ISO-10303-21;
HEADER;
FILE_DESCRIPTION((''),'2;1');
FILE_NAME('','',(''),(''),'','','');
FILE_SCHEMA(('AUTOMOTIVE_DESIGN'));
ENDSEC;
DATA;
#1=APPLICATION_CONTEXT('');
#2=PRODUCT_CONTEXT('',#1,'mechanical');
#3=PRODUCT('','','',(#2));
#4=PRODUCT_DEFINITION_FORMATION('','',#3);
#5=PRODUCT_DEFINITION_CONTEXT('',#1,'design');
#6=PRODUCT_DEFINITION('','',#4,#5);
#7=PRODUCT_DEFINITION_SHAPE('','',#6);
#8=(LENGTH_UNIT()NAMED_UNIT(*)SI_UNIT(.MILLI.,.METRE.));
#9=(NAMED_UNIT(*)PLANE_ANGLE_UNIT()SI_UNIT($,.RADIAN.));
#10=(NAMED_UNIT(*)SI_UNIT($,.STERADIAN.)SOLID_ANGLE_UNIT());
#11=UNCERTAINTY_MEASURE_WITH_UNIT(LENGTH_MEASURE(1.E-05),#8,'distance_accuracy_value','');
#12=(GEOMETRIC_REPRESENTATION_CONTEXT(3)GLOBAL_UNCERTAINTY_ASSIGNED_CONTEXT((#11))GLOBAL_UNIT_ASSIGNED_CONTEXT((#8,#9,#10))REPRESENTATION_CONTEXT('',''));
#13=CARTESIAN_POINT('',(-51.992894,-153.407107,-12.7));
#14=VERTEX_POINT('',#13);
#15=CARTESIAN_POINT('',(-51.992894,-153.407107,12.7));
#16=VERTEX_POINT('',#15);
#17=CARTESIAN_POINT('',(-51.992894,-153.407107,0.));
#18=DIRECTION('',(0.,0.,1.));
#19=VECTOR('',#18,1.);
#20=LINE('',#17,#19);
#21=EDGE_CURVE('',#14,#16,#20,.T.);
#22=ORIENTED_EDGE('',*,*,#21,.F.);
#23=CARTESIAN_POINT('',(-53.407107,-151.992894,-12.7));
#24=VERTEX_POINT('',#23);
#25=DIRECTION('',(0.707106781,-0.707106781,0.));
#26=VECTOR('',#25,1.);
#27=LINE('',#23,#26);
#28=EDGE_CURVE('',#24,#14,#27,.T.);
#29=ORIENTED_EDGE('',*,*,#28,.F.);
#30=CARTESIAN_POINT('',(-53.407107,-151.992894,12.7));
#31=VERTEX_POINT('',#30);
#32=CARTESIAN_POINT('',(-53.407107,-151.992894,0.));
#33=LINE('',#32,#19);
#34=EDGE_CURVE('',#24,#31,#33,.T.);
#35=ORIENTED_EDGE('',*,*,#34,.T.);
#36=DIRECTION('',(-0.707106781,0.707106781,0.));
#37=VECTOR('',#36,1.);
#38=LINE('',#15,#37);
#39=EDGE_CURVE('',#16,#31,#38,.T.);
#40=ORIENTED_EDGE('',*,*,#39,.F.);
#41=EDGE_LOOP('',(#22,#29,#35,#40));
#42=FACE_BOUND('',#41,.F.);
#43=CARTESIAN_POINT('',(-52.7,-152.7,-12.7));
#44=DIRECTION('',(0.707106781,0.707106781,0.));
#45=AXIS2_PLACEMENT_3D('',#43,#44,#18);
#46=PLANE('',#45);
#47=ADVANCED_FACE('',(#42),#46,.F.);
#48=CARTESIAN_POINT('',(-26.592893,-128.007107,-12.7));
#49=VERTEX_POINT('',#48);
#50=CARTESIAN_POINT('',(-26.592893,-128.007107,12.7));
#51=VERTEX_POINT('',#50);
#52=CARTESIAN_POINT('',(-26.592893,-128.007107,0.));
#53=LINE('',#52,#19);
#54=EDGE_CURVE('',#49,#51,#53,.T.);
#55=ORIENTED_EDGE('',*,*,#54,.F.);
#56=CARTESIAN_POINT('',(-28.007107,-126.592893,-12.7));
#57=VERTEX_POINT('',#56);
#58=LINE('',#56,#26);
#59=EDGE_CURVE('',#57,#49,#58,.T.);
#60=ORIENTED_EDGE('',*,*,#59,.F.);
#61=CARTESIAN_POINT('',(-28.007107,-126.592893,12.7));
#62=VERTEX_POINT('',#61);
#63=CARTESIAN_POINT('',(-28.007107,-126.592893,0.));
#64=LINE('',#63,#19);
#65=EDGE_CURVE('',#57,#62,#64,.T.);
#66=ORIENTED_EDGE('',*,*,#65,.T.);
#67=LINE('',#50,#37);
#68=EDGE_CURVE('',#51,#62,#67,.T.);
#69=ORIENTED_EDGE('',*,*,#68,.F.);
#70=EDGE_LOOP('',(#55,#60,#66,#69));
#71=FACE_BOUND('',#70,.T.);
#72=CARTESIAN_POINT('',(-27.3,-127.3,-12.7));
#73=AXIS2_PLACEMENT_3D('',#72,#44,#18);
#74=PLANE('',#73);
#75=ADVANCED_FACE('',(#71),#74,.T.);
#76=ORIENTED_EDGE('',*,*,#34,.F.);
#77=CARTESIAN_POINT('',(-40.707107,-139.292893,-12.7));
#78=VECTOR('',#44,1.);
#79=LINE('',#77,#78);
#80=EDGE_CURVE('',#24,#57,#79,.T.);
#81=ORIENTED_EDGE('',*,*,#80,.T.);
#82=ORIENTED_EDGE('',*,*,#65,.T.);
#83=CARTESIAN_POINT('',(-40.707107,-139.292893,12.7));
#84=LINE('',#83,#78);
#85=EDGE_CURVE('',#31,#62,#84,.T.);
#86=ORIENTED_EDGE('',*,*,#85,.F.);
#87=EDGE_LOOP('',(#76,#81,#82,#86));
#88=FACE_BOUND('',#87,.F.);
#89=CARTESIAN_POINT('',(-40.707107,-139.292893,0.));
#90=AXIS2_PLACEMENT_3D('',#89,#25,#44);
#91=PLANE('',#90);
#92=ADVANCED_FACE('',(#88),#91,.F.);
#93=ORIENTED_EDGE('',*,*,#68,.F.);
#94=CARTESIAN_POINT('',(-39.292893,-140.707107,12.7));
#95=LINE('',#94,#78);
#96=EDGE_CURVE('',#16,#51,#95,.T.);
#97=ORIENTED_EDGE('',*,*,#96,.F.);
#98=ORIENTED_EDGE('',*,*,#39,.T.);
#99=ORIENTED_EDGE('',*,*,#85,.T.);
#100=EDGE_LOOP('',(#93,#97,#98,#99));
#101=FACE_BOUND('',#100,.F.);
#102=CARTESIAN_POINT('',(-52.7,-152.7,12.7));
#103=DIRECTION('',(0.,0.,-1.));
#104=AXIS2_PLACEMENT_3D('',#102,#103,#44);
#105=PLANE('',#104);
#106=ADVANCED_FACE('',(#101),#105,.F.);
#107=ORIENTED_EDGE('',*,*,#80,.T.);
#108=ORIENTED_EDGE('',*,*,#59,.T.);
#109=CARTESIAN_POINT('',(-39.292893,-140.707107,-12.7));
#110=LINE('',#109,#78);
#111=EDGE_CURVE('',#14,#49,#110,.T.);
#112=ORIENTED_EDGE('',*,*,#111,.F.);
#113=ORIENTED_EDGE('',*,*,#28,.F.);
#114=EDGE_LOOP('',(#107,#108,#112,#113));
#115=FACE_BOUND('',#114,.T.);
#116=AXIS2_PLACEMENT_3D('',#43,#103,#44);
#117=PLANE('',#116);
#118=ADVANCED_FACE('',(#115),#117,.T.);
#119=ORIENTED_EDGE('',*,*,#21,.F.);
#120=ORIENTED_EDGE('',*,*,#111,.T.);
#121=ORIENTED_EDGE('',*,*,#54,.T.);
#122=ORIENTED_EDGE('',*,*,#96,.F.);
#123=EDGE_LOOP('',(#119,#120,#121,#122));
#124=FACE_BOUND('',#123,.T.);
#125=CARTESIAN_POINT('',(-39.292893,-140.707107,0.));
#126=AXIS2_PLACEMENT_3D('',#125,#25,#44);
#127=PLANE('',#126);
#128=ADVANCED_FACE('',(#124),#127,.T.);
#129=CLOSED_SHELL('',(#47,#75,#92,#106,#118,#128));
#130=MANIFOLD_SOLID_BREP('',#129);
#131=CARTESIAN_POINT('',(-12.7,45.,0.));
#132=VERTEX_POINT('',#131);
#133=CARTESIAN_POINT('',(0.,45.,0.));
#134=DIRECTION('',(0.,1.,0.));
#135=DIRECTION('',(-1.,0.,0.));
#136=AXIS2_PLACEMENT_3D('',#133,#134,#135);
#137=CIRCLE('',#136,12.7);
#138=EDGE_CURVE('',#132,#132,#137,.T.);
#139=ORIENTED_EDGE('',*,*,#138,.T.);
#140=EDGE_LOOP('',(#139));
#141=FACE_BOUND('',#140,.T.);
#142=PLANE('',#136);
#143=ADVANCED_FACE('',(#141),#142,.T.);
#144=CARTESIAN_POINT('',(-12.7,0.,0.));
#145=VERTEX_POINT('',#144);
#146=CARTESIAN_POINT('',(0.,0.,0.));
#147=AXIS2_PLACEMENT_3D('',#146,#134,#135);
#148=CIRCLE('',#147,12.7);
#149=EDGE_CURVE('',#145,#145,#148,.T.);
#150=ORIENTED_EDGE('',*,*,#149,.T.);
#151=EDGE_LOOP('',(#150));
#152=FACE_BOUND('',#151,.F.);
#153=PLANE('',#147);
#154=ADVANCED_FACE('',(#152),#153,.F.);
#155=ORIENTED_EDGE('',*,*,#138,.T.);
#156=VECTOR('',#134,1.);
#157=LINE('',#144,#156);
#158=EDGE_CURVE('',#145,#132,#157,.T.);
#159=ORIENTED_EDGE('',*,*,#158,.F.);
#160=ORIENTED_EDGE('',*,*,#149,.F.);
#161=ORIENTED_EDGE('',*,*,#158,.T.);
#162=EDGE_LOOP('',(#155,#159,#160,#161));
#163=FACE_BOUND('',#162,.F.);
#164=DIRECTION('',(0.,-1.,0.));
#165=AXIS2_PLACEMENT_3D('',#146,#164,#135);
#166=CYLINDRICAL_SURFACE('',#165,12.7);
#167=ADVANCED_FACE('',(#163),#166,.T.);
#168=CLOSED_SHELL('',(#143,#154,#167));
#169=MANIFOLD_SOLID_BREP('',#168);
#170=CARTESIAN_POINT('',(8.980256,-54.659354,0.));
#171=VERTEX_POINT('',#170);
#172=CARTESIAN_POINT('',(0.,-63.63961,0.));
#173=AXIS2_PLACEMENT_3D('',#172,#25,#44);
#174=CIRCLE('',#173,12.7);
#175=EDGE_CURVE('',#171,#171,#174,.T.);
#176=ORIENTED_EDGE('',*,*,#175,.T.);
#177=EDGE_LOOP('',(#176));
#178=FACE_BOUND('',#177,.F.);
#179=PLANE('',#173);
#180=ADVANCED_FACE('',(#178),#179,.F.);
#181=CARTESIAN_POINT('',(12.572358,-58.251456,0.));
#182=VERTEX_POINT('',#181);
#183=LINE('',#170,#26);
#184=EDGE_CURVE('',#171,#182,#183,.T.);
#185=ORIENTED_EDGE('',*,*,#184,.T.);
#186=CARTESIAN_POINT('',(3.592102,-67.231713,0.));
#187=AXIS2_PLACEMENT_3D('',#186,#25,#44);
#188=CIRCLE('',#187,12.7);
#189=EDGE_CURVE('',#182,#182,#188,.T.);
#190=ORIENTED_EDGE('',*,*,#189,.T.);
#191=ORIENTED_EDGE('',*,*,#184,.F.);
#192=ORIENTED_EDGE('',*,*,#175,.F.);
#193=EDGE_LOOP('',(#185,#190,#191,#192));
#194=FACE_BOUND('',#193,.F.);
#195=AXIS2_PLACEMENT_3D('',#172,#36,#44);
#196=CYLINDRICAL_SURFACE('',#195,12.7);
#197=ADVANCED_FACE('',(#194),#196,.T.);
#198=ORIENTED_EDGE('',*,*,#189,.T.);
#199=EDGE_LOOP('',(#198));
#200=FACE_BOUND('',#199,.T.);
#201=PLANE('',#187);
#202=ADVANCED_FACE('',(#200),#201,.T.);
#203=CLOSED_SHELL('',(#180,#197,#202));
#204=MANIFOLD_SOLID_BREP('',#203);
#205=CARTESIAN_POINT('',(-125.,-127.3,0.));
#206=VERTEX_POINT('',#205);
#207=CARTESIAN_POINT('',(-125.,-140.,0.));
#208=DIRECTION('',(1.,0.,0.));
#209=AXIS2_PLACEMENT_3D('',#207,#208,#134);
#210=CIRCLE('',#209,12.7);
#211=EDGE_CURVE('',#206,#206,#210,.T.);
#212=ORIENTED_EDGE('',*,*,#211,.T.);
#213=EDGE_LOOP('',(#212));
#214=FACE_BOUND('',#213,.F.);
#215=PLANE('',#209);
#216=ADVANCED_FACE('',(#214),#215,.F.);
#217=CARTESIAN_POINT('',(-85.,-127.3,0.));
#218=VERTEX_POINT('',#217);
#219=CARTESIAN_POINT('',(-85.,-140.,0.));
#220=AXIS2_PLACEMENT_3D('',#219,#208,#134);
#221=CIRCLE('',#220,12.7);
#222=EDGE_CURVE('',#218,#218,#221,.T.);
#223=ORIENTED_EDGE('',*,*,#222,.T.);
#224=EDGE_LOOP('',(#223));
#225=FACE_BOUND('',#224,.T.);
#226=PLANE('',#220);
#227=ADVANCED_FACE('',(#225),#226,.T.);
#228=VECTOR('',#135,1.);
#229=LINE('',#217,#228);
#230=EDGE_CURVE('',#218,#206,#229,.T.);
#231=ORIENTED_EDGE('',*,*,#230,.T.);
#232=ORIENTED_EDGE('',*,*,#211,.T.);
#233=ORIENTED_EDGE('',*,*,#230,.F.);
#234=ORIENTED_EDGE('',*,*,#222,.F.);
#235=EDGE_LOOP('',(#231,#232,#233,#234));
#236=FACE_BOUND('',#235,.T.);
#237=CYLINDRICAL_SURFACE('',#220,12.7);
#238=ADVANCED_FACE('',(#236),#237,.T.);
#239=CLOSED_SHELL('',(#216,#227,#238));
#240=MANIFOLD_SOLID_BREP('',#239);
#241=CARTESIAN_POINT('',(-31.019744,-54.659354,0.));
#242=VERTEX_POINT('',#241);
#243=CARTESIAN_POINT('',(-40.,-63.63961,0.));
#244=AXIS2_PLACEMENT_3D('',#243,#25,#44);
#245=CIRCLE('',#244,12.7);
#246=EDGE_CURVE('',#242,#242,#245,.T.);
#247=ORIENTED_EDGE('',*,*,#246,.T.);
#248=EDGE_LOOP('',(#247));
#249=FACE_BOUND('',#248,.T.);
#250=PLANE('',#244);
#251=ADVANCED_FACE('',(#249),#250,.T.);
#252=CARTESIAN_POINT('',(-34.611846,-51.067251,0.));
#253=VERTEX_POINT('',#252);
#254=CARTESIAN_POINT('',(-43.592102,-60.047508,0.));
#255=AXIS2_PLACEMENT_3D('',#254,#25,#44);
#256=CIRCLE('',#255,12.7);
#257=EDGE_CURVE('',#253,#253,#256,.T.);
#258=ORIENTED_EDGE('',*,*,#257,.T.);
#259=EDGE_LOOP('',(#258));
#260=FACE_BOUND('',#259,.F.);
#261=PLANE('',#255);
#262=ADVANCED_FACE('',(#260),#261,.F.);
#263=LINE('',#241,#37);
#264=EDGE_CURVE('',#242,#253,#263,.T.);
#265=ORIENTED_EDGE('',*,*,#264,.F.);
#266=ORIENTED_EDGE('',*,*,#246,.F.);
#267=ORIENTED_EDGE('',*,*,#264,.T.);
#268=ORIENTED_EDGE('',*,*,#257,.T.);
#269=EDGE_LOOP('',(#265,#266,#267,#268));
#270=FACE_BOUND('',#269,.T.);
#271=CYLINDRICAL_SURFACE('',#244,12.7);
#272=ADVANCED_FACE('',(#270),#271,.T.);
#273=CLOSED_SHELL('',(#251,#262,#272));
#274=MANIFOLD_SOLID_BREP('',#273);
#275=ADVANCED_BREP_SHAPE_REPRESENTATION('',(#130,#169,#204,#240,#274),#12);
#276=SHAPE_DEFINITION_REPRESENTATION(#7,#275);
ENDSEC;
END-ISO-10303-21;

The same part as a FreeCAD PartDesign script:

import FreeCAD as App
import Part
import Sketcher
from FreeCAD import Vector

doc = App.newDocument("Part")
body = doc.addObject("PartDesign::Body", "Body")

sketch1 = body.newObject("Sketcher::SketchObject", "Sketch")
sketch1.Placement = App.Placement(Vector(31.819805, -31.819805, 0), App.Rotation(Vector(0.707106781, 0.707106781, 0), Vector(0, 0, 0.999999999), Vector(0.707106781, -0.707106781, 0), "ZXY"))
sketch1.addGeometry(Part.Circle(Vector(-45, 0, 0), Vector(0, 0, 1), 12.7), False)
sketch1.addConstraint(Sketcher.Constraint("PointOnObject", 0, 3, -1))
sketch1.addConstraint(Sketcher.Constraint("Diameter", 0, 25.4))
sketch1.addConstraint(Sketcher.Constraint("DistanceX", 0, 3, -1, 1, 45.0))
pad1 = body.newObject("PartDesign::Pad", "Pad")
pad1.Profile = sketch1
pad1.Length = 5.08
body2 = doc.addObject("PartDesign::Body", "Body001")

sketch2 = body2.newObject("Sketcher::SketchObject", "Sketch001")
sketch2.Placement = App.Placement(Vector(11.819805, -11.819805, 0), App.Rotation(Vector(0.707106781, 0.707106781, 0), Vector(0, 0, 0.999999999), Vector(0.707106781, -0.707106781, 0), "ZXY"))
sketch2.addGeometry(Part.Circle(Vector(-73.284271, 0, 0), Vector(0, 0, 1), 12.7), False)
sketch2.addConstraint(Sketcher.Constraint("PointOnObject", 0, 3, -1))
sketch2.addConstraint(Sketcher.Constraint("Diameter", 0, 25.4))
sketch2.addConstraint(Sketcher.Constraint("DistanceX", 0, 3, -1, 1, 73.284271))
pad2 = body2.newObject("PartDesign::Pad", "Pad001")
pad2.Profile = sketch2
pad2.Length = 5.08
pad2.Reversed = True
body3 = doc.addObject("PartDesign::Body", "Body002")

sketch3 = body3.newObject("Sketcher::SketchObject", "Sketch002")
sketch3.Placement = App.Placement(Vector(50, -50, 0), App.Rotation(Vector(0.707106781, 0.707106781, 0), Vector(0, 0, 0.999999999), Vector(0.707106781, -0.707106781, 0), "ZXY"))
sketch3.addGeometry(Part.LineSegment(Vector(-145.239733, 12.7, 0), Vector(-145.239733, -12.7, 0)), False)
sketch3.addGeometry(Part.LineSegment(Vector(-145.239733, -12.7, 0), Vector(-109.318708, -12.7, 0)), False)
sketch3.addGeometry(Part.LineSegment(Vector(-109.318708, -12.7, 0), Vector(-109.318708, 12.7, 0)), False)
sketch3.addGeometry(Part.LineSegment(Vector(-109.318708, 12.7, 0), Vector(-145.239733, 12.7, 0)), False)
sketch3.addConstraint(Sketcher.Constraint("Coincident", 0, 2, 1, 1))
sketch3.addConstraint(Sketcher.Constraint("Coincident", 1, 2, 2, 1))
sketch3.addConstraint(Sketcher.Constraint("Coincident", 2, 2, 3, 1))
sketch3.addConstraint(Sketcher.Constraint("Coincident", 3, 2, 0, 1))
sketch3.addConstraint(Sketcher.Constraint("Vertical", 0))
sketch3.addConstraint(Sketcher.Constraint("Horizontal", 1))
sketch3.addConstraint(Sketcher.Constraint("Vertical", 2))
sketch3.addConstraint(Sketcher.Constraint("Horizontal", 3))
sketch3.addConstraint(Sketcher.Constraint("DistanceY", 0, 2, 0, 1, 25.4))
sketch3.addConstraint(Sketcher.Constraint("DistanceY", 0, 2, -1, 1, 12.7))
sketch3.addConstraint(Sketcher.Constraint("DistanceX", 1, 1, 1, 2, 35.921025))
sketch3.addConstraint(Sketcher.Constraint("DistanceX", 1, 2, -1, 1, 109.318708))
pad3 = body3.newObject("PartDesign::Pad", "Pad002")
pad3.Profile = sketch3
pad3.Length = 2
pad3.Midplane = True
body4 = doc.addObject("PartDesign::Body", "Body003")

sketch4 = body4.newObject("Sketcher::SketchObject", "Sketch003")
sketch4.AttachmentSupport = (doc.getObject("XZ_Plane003"), [""])
sketch4.MapMode = "FlatFace"
sketch4.addGeometry(Part.Circle(Vector(0, 0, 0), Vector(0, 0, 1), 12.7), False)
sketch4.addConstraint(Sketcher.Constraint("Coincident", 0, 3, -1, 1))
sketch4.addConstraint(Sketcher.Constraint("Diameter", 0, 25.4))
pad4 = body4.newObject("PartDesign::Pad", "Pad003")
pad4.Profile = sketch4
pad4.Length = 45
pad4.Reversed = True
body5 = doc.addObject("PartDesign::Body", "Body004")

sketch5 = body5.newObject("Sketcher::SketchObject", "Sketch004")
sketch5.AttachmentSupport = (doc.getObject("YZ_Plane004"), [""])
sketch5.MapMode = "FlatFace"
sketch5.AttachmentOffset = App.Placement(Vector(0, 0, -85), App.Rotation())
sketch5.addGeometry(Part.Circle(Vector(-140, 0, 0), Vector(0, 0, 1), 12.7), False)
sketch5.addConstraint(Sketcher.Constraint("PointOnObject", 0, 3, -1))
sketch5.addConstraint(Sketcher.Constraint("Diameter", 0, 25.4))
sketch5.addConstraint(Sketcher.Constraint("DistanceX", 0, 3, -1, 1, 140.0))
pad5 = body5.newObject("PartDesign::Pad", "Pad004")
pad5.Profile = sketch5
pad5.Length = 40
pad5.Reversed = True

doc.recompute()
